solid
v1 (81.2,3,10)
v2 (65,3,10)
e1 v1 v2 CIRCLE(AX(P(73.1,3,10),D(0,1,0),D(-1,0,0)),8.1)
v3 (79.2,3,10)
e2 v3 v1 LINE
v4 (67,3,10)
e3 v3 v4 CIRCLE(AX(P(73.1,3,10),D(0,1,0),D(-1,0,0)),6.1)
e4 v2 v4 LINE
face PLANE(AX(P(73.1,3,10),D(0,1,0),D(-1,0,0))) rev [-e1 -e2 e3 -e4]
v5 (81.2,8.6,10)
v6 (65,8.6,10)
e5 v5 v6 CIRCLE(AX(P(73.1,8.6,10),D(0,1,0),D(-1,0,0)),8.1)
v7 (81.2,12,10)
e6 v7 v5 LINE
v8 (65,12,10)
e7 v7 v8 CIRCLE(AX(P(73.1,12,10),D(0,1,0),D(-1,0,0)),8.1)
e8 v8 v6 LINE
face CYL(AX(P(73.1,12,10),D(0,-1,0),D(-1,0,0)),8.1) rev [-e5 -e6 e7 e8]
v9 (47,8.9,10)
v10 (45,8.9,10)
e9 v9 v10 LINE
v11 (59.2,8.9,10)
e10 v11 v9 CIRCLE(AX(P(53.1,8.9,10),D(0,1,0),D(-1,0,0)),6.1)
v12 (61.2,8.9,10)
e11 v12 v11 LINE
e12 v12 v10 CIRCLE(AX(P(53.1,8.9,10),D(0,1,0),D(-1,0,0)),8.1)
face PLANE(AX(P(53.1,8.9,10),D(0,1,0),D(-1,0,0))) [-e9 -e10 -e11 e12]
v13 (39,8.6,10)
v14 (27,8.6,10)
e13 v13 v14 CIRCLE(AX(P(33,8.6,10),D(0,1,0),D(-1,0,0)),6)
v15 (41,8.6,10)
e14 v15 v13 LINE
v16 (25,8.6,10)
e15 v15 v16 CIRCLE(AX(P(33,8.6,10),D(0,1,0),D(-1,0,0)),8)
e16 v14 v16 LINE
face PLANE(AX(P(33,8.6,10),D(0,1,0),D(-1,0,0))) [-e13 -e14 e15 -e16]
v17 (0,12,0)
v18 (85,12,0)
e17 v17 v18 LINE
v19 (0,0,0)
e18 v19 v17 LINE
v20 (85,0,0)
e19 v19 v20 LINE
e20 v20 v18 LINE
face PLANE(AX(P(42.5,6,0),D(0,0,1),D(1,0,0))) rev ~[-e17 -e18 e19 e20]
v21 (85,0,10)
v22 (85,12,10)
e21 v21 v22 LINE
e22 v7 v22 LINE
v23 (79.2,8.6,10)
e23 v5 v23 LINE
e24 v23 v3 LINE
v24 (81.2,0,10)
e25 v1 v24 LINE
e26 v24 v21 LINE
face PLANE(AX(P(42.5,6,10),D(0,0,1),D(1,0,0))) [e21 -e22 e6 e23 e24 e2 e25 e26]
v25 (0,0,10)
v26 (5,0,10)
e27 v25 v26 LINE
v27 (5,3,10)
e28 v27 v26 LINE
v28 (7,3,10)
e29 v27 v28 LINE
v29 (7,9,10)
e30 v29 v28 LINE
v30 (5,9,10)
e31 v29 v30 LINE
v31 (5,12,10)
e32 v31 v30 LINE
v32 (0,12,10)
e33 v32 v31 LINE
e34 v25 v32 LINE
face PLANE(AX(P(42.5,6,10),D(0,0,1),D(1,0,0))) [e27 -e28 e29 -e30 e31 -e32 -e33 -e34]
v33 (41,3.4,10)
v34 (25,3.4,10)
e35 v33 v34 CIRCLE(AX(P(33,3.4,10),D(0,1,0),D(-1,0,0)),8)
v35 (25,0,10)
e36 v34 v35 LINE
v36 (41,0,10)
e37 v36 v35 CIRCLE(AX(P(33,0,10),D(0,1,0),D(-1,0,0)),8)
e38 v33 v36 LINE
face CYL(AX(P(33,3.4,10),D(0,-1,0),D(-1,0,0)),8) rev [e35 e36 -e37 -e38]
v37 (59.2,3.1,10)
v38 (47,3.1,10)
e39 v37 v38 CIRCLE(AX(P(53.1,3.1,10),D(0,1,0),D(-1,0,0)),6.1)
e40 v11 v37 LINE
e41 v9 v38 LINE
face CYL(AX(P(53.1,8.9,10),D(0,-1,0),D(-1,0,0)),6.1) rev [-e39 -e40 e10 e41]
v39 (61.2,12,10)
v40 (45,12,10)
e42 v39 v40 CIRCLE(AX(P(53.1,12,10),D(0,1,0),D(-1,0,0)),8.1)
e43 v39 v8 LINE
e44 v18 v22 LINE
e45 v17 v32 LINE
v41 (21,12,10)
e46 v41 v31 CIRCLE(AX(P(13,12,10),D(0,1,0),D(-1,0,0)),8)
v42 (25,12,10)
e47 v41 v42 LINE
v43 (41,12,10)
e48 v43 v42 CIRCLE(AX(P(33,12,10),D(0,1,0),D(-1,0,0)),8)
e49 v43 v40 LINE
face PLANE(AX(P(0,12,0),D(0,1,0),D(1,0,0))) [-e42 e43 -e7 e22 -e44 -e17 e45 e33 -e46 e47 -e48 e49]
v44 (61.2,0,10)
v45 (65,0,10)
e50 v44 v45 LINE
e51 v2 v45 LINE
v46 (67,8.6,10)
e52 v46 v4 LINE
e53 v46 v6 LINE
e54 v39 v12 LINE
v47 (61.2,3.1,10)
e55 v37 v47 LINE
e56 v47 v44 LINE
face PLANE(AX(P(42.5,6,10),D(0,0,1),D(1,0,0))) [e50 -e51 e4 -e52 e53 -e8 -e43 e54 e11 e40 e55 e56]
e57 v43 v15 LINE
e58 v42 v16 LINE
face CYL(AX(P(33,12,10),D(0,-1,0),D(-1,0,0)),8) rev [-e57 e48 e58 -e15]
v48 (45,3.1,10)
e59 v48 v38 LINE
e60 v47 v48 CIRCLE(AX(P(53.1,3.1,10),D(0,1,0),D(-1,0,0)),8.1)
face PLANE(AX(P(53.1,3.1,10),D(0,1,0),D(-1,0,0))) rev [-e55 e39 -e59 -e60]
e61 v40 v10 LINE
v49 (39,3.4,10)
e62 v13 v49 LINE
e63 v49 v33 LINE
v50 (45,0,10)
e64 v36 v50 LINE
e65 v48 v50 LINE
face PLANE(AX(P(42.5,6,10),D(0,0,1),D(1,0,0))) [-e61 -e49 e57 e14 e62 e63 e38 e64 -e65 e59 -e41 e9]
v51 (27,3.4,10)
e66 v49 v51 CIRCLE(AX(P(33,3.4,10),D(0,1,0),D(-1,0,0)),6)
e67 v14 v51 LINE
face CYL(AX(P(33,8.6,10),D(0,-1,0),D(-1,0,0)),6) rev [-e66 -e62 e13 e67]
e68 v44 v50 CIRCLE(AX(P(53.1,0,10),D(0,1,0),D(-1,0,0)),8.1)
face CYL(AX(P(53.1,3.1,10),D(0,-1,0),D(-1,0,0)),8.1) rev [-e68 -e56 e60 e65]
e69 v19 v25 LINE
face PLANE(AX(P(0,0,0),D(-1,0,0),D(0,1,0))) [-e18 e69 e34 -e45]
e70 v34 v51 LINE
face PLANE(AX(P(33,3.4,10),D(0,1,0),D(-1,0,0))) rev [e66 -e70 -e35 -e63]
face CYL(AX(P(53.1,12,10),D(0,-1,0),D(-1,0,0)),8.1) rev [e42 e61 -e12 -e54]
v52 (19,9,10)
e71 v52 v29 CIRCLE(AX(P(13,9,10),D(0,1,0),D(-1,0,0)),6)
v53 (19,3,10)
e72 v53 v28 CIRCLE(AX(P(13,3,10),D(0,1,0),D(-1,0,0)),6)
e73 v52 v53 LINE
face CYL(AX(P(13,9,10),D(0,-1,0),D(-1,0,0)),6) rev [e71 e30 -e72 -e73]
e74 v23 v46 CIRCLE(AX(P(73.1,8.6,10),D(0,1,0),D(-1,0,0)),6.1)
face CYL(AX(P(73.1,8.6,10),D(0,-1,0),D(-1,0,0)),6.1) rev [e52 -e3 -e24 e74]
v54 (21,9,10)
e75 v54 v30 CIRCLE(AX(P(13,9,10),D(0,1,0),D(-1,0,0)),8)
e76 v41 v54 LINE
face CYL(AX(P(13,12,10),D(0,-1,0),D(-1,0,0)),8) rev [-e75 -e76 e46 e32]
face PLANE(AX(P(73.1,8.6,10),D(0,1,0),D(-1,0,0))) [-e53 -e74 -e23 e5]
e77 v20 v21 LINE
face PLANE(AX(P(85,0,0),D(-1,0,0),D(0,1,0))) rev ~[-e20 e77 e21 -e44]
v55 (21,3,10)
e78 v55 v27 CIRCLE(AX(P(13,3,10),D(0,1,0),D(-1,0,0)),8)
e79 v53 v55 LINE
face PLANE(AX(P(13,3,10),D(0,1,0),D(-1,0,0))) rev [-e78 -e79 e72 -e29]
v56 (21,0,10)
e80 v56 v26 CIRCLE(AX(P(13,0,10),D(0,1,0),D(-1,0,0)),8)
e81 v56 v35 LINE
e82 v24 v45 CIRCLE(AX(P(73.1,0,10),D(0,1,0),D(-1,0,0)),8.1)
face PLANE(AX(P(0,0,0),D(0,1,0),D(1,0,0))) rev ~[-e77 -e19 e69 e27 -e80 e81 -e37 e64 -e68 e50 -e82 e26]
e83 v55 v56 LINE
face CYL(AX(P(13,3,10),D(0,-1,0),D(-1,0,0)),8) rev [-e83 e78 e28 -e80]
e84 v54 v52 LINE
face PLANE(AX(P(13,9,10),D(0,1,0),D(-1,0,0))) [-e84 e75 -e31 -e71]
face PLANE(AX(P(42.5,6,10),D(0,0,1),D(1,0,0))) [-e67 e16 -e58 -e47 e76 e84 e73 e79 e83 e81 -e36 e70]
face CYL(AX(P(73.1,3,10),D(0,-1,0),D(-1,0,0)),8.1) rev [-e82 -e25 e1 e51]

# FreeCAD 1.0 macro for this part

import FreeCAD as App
import Part
import Sketcher

V = App.Vector


def add_polygon(sketch, points):
    """Adds a closed chain of lines whose ends are joined by coincident constraints."""
    first, n = sketch.GeometryCount, len(points)
    for a, b in zip(points, points[1:] + points[:1]):
        sketch.addGeometry(Part.LineSegment(App.Vector(*a, 0), App.Vector(*b, 0)), False)
    for i in range(n):
        sketch.addConstraint(Sketcher.Constraint("Coincident", first + i, 2, first + (i + 1) % n, 1))

doc = App.newDocument("Part")
body = doc.addObject("PartDesign::Body", "Body")

sketch1 = body.newObject("Sketcher::SketchObject", "Sketch")
sketch1.AttachmentSupport = (doc.getObject("XY_Plane"), [""])
sketch1.MapMode = "FlatFace"
add_polygon(sketch1, [(0, 12), (0, 0), (85, 0), (85, 12)])
sketch1.addConstraint([
    Sketcher.Constraint("Vertical", 0),
    Sketcher.Constraint("Horizontal", 1),
    Sketcher.Constraint("Vertical", 2),
    Sketcher.Constraint("Horizontal", 3),
    Sketcher.Constraint("Coincident", 0, 2, -1, 1),
    Sketcher.Constraint("DistanceX", 1, 1, 1, 2, 85.0),
    Sketcher.Constraint("DistanceY", 0, 2, 0, 1, 12.0),
])
pad1 = body.newObject("PartDesign::Pad", "Pad")
pad1.Profile = sketch1
pad1.Length = 10

sketch2 = body.newObject("Sketcher::SketchObject", "Sketch001")
sketch2.AttachmentSupport = (doc.getObject("XY_Plane"), [""])
sketch2.MapMode = "FlatFace"
sketch2.AttachmentOffset = App.Placement(V(0, 0, 10), App.Rotation())
add_polygon(sketch2, [(5, 3), (5, 0), (13, 0), (13, 12), (5, 12), (5, 9), (7, 9), (7, 3)])
sketch2.addGeometry(Part.LineSegment(V(13, 0, 0), V(13, 12, 0)), True)
sketch2.addConstraint([
    Sketcher.Constraint("Vertical", 0),
    Sketcher.Constraint("Horizontal", 1),
    Sketcher.Constraint("Vertical", 2),
    Sketcher.Constraint("Horizontal", 3),
    Sketcher.Constraint("Vertical", 4),
    Sketcher.Constraint("Horizontal", 5),
    Sketcher.Constraint("Vertical", 6),
    Sketcher.Constraint("Horizontal", 7),
    Sketcher.Constraint("Vertical", 8),
    Sketcher.Constraint("Coincident", 8, 1, 1, 2),
    Sketcher.Constraint("PointOnObject", 0, 2, -1),
    Sketcher.Constraint("Horizontal", 3, 2, 8, 2),
    Sketcher.Constraint("Vertical", 0, 2, 3, 2),
    Sketcher.Constraint("Equal", 0, 4),
    Sketcher.Constraint("DistanceX", 1, 1, 1, 2, 8.0),
    Sketcher.Constraint("DistanceX", 5, 1, 5, 2, 2.0),
    Sketcher.Constraint("DistanceY", 0, 2, 0, 1, 3.0),
    Sketcher.Constraint("DistanceY", 2, 1, 2, 2, 12.0),
    Sketcher.Constraint("DistanceX", -1, 1, 0, 2, 5.0),
])
groove = body.newObject("PartDesign::Groove", "Groove")
groove.Profile = sketch2
groove.ReferenceAxis = (sketch2, ["Axis0"])
groove.Angle = 360

sketch3 = body.newObject("Sketcher::SketchObject", "Sketch002")
sketch3.AttachmentSupport = (doc.getObject("XY_Plane"), [""])
sketch3.MapMode = "FlatFace"
sketch3.AttachmentOffset = App.Placement(V(0, 0, 10), App.Rotation())
add_polygon(sketch3, [(25, 3.4), (25, 0), (33, 0), (33, 12), (25, 12), (25, 8.6), (27, 8.6), (27, 3.4)])
sketch3.addGeometry(Part.LineSegment(V(33, 0, 0), V(33, 12, 0)), True)
sketch3.addConstraint([
    Sketcher.Constraint("Vertical", 0),
    Sketcher.Constraint("Horizontal", 1),
    Sketcher.Constraint("Vertical", 2),
    Sketcher.Constraint("Horizontal", 3),
    Sketcher.Constraint("Vertical", 4),
    Sketcher.Constraint("Horizontal", 5),
    Sketcher.Constraint("Vertical", 6),
    Sketcher.Constraint("Horizontal", 7),
    Sketcher.Constraint("Vertical", 8),
    Sketcher.Constraint("Coincident", 8, 1, 1, 2),
    Sketcher.Constraint("PointOnObject", 0, 2, -1),
    Sketcher.Constraint("Horizontal", 3, 2, 8, 2),
    Sketcher.Constraint("Vertical", 0, 2, 3, 2),
    Sketcher.Constraint("Equal", 0, 4),
    Sketcher.Constraint("DistanceX", 1, 1, 1, 2, 8.0),
    Sketcher.Constraint("DistanceX", 5, 1, 5, 2, 2.0),
    Sketcher.Constraint("DistanceY", 2, 1, 2, 2, 12.0),
    Sketcher.Constraint("DistanceY", 0, 2, 0, 1, 3.4),
    Sketcher.Constraint("DistanceX", -1, 1, 0, 2, 25.0),
])
groove2 = body.newObject("PartDesign::Groove", "Groove001")
groove2.Profile = sketch3
groove2.ReferenceAxis = (sketch3, ["Axis0"])
groove2.Angle = 360

sketch4 = body.newObject("Sketcher::SketchObject", "Sketch003")
sketch4.AttachmentSupport = (doc.getObject("XY_Plane"), [""])
sketch4.MapMode = "FlatFace"
sketch4.AttachmentOffset = App.Placement(V(0, 0, 10), App.Rotation())
add_polygon(sketch4, [(45, 3.1), (45, 0), (53.1, 0), (53.1, 12), (45, 12), (45, 8.9), (47, 8.9), (47, 3.1)])
sketch4.addGeometry(Part.LineSegment(V(53.1, 0, 0), V(53.1, 12, 0)), True)
sketch4.addConstraint([
    Sketcher.Constraint("Vertical", 0),
    Sketcher.Constraint("Horizontal", 1),
    Sketcher.Constraint("Vertical", 2),
    Sketcher.Constraint("Horizontal", 3),
    Sketcher.Constraint("Vertical", 4),
    Sketcher.Constraint("Horizontal", 5),
    Sketcher.Constraint("Vertical", 6),
    Sketcher.Constraint("Horizontal", 7),
    Sketcher.Constraint("Vertical", 8),
    Sketcher.Constraint("Coincident", 8, 1, 1, 2),
    Sketcher.Constraint("PointOnObject", 0, 2, -1),
    Sketcher.Constraint("Horizontal", 3, 2, 8, 2),
    Sketcher.Constraint("Vertical", 0, 2, 3, 2),
    Sketcher.Constraint("Equal", 0, 4),
    Sketcher.Constraint("DistanceX", 5, 1, 5, 2, 2.0),
    Sketcher.Constraint("DistanceY", 2, 1, 2, 2, 12.0),
    Sketcher.Constraint("DistanceX", 1, 1, 1, 2, 8.1),
    Sketcher.Constraint("DistanceY", 0, 2, 0, 1, 3.1),
    Sketcher.Constraint("DistanceX", -1, 1, 0, 2, 45.0),
])
groove3 = body.newObject("PartDesign::Groove", "Groove002")
groove3.Profile = sketch4
groove3.ReferenceAxis = (sketch4, ["Axis0"])
groove3.Angle = 360

sketch5 = body.newObject("Sketcher::SketchObject", "Sketch004")
sketch5.AttachmentSupport = (doc.getObject("XY_Plane"), [""])
sketch5.MapMode = "FlatFace"
sketch5.AttachmentOffset = App.Placement(V(0, 0, 10), App.Rotation())
add_polygon(sketch5, [(65, 3), (65, 0), (73.1, 0), (73.1, 12), (65, 12), (65, 8.6), (67, 8.6), (67, 3)])
sketch5.addGeometry(Part.LineSegment(V(73.1, 0, 0), V(73.1, 12, 0)), True)
sketch5.addConstraint([
    Sketcher.Constraint("Vertical", 0),
    Sketcher.Constraint("Horizontal", 1),
    Sketcher.Constraint("Vertical", 2),
    Sketcher.Constraint("Horizontal", 3),
    Sketcher.Constraint("Vertical", 4),
    Sketcher.Constraint("Horizontal", 5),
    Sketcher.Constraint("Vertical", 6),
    Sketcher.Constraint("Horizontal", 7),
    Sketcher.Constraint("Vertical", 8),
    Sketcher.Constraint("Coincident", 8, 1, 1, 2),
    Sketcher.Constraint("PointOnObject", 0, 2, -1),
    Sketcher.Constraint("Horizontal", 3, 2, 8, 2),
    Sketcher.Constraint("Vertical", 0, 2, 3, 2),
    Sketcher.Constraint("DistanceX", 5, 1, 5, 2, 2.0),
    Sketcher.Constraint("DistanceY", 0, 2, 0, 1, 3.0),
    Sketcher.Constraint("DistanceY", 2, 1, 2, 2, 12.0),
    Sketcher.Constraint("DistanceX", 1, 1, 1, 2, 8.1),
    Sketcher.Constraint("DistanceY", 4, 2, 4, 1, 3.4),
    Sketcher.Constraint("DistanceX", -1, 1, 0, 2, 65.0),
])
groove4 = body.newObject("PartDesign::Groove", "Groove003")
groove4.Profile = sketch5
groove4.ReferenceAxis = (sketch5, ["Axis0"])
groove4.Angle = 360

doc.recompute()
